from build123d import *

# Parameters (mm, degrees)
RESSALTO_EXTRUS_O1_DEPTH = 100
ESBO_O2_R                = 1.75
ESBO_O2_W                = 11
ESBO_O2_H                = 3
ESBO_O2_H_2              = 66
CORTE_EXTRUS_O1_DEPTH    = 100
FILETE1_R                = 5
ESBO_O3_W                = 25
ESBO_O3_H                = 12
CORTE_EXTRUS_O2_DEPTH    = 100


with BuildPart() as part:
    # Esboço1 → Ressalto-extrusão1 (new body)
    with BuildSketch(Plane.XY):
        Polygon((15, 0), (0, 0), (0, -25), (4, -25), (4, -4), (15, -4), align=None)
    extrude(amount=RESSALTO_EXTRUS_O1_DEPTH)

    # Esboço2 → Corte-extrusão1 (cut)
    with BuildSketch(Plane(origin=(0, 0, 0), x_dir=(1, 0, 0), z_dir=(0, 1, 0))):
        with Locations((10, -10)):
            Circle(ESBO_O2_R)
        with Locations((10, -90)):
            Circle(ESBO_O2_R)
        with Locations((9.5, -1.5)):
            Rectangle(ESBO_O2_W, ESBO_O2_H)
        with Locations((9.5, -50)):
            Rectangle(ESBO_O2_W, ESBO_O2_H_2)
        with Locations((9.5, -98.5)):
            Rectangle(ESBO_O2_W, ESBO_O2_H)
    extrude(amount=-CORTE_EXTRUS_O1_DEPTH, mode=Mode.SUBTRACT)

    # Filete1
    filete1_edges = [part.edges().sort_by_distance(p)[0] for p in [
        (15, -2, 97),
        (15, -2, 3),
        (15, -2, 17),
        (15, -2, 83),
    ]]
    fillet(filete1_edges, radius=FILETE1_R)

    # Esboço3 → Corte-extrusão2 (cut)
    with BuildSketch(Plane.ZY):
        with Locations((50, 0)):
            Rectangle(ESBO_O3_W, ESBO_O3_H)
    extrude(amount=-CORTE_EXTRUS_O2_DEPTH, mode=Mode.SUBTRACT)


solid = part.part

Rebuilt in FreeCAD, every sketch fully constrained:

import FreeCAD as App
import Part
import Sketcher


def edges_at(feature, points):
    """Names of the edges that pass closest to the given points."""
    edges = feature.Shape.Edges
    near = lambda p: min(range(len(edges)), key=lambda i: edges[i].distToShape(Part.Vertex(*p))[0])
    return sorted({f"Edge{near(p) + 1}" for p in points})


def add_polygon(sketch, points):
    """Adds a closed chain of lines whose ends are joined by coincident constraints."""
    first, n = sketch.GeometryCount, len(points)
    for a, b in zip(points, points[1:] + points[:1]):
        sketch.addGeometry(Part.LineSegment(App.Vector(*a, 0), App.Vector(*b, 0)), False)
    for i in range(n):
        sketch.addConstraint(Sketcher.Constraint("Coincident", first + i, 2, first + (i + 1) % n, 1))

doc = App.newDocument("Part")
body = doc.addObject("PartDesign::Body", "Body")

# Sketch on XY plane
sketch1 = doc.addObject("Sketcher::SketchObject", "Sketch")
body.addObject(sketch1)
sketch1.AttachmentSupport = (doc.XY_Plane, [""])
sketch1.MapMode = "FlatFace"
add_polygon(sketch1, [(15, 0), (0, 0), (0, -25), (4, -25), (4, -4), (15, -4)])  # lines 0-5
sketch1.addConstraint([
    Sketcher.Constraint("Horizontal", 0),
    Sketcher.Constraint("Vertical", 1),
    Sketcher.Constraint("Horizontal", 2),
    Sketcher.Constraint("Vertical", 3),
    Sketcher.Constraint("Horizontal", 4),
    Sketcher.Constraint("Vertical", 5),
    Sketcher.Constraint("Coincident", 0, 2, -1, 1),
    Sketcher.Constraint("Equal", 2, 5),
    Sketcher.Constraint("DistanceX", 0, 2, 0, 1, 15.0),
    Sketcher.Constraint("DistanceX", 2, 1, 2, 2, 4.0),
    Sketcher.Constraint("DistanceY", 1, 2, 1, 1, 25.0),
])
pad1 = doc.addObject("PartDesign::Pad", "Pad")
body.addObject(pad1)
pad1.Profile = sketch1
pad1.Length = 100

# Sketch on XZ plane
sketch2 = doc.addObject("Sketcher::SketchObject", "Sketch001")
body.addObject(sketch2)
sketch2.AttachmentSupport = (doc.XZ_Plane, [""])
sketch2.MapMode = "FlatFace"
sketch2.addGeometry(Part.Circle(App.Vector(10, 10, 0), App.Vector(0, 0, 1), 1.8), False)  # 0
sketch2.addGeometry(Part.Circle(App.Vector(10, 90, 0), App.Vector(0, 0, 1), 1.8), False)  # 1
add_polygon(sketch2, [(4, 0), (4, 3), (15, 3), (15, 0)])  # lines 2-5
add_polygon(sketch2, [(4, 17), (4, 83), (15, 83), (15, 17)])  # lines 6-9
add_polygon(sketch2, [(4, 97), (4, 100), (15, 100), (15, 97)])  # lines 10-13
sketch2.addConstraint([
    Sketcher.Constraint("Vertical", 2),
    Sketcher.Constraint("Horizontal", 3),
    Sketcher.Constraint("Vertical", 4),
    Sketcher.Constraint("Horizontal", 5),
    Sketcher.Constraint("Vertical", 6),
    Sketcher.Constraint("Horizontal", 7),
    Sketcher.Constraint("Vertical", 8),
    Sketcher.Constraint("Horizontal", 9),
    Sketcher.Constraint("Vertical", 10),
    Sketcher.Constraint("Horizontal", 11),
    Sketcher.Constraint("Vertical", 12),
    Sketcher.Constraint("Horizontal", 13),
    Sketcher.Constraint("Equal", 0, 1),
    Sketcher.Constraint("PointOnObject", 4, 2, -1),
    Sketcher.Constraint("Vertical", 0, 3, 1, 3),
    Sketcher.Constraint("Vertical", 5, 2, 6, 2),
    Sketcher.Constraint("Vertical", 4, 2, 7, 2),
    Sketcher.Constraint("Vertical", 9, 2, 10, 2),
    Sketcher.Constraint("Vertical", 8, 2, 11, 2),
    Sketcher.Constraint("Equal", 4, 10),
    Sketcher.Constraint("Diameter", 0, 3.5),
    Sketcher.Constraint("DistanceX", 3, 1, 3, 2, 11.0),
    Sketcher.Constraint("DistanceY", 2, 1, 2, 2, 3.0),
    Sketcher.Constraint("DistanceY", 6, 1, 6, 2, 66.0),
    Sketcher.Constraint("DistanceX", -1, 1, 0, 3, 10.0),
    Sketcher.Constraint("DistanceY", -1, 1, 0, 3, 10.0),
    Sketcher.Constraint("DistanceY", -1, 1, 1, 3, 90.0),
    Sketcher.Constraint("DistanceX", -1, 1, 2, 2, 4.0),
    Sketcher.Constraint("DistanceY", -1, 1, 6, 2, 83.0),
    Sketcher.Constraint("DistanceY", -1, 1, 10, 2, 100.0),
])
pocket1 = doc.addObject("PartDesign::Pocket", "Pocket")
body.addObject(pocket1)
pocket1.Profile = sketch2
pocket1.Length = 100
pocket1.Reversed = True
doc.recompute()

fillet = doc.addObject("PartDesign::Fillet", "Fillet")
body.addObject(fillet)
fillet.Base = (pocket1, edges_at(pocket1, [
    (15, -2, 97),
    (15, -2, 3),
    (15, -2, 17),
    (15, -2, 83),
]))
fillet.Radius = 5

# Sketch on YZ plane
sketch3 = doc.addObject("Sketcher::SketchObject", "Sketch002")
body.addObject(sketch3)
sketch3.AttachmentSupport = (doc.YZ_Plane, [""])
sketch3.MapMode = "FlatFace"
add_polygon(sketch3, [(6, 38), (-6, 38), (-6, 62), (6, 62)])  # lines 0-3
sketch3.addConstraint([
    Sketcher.Constraint("Horizontal", 0),
    Sketcher.Constraint("Vertical", 1),
    Sketcher.Constraint("Horizontal", 2),
    Sketcher.Constraint("Vertical", 3),
    Sketcher.Constraint("DistanceX", 0, 2, 0, 1, 12.0),
    Sketcher.Constraint("DistanceY", 1, 1, 1, 2, 25.0),
    Sketcher.Constraint("DistanceX", 0, 2, -1, 1, 6.0),
    Sketcher.Constraint("DistanceY", -1, 1, 0, 2, 37.5),
])
pocket2 = doc.addObject("PartDesign::Pocket", "Pocket001")
body.addObject(pocket2)
pocket2.Profile = sketch3
pocket2.Length = 100
pocket2.Reversed = True

doc.recompute()
